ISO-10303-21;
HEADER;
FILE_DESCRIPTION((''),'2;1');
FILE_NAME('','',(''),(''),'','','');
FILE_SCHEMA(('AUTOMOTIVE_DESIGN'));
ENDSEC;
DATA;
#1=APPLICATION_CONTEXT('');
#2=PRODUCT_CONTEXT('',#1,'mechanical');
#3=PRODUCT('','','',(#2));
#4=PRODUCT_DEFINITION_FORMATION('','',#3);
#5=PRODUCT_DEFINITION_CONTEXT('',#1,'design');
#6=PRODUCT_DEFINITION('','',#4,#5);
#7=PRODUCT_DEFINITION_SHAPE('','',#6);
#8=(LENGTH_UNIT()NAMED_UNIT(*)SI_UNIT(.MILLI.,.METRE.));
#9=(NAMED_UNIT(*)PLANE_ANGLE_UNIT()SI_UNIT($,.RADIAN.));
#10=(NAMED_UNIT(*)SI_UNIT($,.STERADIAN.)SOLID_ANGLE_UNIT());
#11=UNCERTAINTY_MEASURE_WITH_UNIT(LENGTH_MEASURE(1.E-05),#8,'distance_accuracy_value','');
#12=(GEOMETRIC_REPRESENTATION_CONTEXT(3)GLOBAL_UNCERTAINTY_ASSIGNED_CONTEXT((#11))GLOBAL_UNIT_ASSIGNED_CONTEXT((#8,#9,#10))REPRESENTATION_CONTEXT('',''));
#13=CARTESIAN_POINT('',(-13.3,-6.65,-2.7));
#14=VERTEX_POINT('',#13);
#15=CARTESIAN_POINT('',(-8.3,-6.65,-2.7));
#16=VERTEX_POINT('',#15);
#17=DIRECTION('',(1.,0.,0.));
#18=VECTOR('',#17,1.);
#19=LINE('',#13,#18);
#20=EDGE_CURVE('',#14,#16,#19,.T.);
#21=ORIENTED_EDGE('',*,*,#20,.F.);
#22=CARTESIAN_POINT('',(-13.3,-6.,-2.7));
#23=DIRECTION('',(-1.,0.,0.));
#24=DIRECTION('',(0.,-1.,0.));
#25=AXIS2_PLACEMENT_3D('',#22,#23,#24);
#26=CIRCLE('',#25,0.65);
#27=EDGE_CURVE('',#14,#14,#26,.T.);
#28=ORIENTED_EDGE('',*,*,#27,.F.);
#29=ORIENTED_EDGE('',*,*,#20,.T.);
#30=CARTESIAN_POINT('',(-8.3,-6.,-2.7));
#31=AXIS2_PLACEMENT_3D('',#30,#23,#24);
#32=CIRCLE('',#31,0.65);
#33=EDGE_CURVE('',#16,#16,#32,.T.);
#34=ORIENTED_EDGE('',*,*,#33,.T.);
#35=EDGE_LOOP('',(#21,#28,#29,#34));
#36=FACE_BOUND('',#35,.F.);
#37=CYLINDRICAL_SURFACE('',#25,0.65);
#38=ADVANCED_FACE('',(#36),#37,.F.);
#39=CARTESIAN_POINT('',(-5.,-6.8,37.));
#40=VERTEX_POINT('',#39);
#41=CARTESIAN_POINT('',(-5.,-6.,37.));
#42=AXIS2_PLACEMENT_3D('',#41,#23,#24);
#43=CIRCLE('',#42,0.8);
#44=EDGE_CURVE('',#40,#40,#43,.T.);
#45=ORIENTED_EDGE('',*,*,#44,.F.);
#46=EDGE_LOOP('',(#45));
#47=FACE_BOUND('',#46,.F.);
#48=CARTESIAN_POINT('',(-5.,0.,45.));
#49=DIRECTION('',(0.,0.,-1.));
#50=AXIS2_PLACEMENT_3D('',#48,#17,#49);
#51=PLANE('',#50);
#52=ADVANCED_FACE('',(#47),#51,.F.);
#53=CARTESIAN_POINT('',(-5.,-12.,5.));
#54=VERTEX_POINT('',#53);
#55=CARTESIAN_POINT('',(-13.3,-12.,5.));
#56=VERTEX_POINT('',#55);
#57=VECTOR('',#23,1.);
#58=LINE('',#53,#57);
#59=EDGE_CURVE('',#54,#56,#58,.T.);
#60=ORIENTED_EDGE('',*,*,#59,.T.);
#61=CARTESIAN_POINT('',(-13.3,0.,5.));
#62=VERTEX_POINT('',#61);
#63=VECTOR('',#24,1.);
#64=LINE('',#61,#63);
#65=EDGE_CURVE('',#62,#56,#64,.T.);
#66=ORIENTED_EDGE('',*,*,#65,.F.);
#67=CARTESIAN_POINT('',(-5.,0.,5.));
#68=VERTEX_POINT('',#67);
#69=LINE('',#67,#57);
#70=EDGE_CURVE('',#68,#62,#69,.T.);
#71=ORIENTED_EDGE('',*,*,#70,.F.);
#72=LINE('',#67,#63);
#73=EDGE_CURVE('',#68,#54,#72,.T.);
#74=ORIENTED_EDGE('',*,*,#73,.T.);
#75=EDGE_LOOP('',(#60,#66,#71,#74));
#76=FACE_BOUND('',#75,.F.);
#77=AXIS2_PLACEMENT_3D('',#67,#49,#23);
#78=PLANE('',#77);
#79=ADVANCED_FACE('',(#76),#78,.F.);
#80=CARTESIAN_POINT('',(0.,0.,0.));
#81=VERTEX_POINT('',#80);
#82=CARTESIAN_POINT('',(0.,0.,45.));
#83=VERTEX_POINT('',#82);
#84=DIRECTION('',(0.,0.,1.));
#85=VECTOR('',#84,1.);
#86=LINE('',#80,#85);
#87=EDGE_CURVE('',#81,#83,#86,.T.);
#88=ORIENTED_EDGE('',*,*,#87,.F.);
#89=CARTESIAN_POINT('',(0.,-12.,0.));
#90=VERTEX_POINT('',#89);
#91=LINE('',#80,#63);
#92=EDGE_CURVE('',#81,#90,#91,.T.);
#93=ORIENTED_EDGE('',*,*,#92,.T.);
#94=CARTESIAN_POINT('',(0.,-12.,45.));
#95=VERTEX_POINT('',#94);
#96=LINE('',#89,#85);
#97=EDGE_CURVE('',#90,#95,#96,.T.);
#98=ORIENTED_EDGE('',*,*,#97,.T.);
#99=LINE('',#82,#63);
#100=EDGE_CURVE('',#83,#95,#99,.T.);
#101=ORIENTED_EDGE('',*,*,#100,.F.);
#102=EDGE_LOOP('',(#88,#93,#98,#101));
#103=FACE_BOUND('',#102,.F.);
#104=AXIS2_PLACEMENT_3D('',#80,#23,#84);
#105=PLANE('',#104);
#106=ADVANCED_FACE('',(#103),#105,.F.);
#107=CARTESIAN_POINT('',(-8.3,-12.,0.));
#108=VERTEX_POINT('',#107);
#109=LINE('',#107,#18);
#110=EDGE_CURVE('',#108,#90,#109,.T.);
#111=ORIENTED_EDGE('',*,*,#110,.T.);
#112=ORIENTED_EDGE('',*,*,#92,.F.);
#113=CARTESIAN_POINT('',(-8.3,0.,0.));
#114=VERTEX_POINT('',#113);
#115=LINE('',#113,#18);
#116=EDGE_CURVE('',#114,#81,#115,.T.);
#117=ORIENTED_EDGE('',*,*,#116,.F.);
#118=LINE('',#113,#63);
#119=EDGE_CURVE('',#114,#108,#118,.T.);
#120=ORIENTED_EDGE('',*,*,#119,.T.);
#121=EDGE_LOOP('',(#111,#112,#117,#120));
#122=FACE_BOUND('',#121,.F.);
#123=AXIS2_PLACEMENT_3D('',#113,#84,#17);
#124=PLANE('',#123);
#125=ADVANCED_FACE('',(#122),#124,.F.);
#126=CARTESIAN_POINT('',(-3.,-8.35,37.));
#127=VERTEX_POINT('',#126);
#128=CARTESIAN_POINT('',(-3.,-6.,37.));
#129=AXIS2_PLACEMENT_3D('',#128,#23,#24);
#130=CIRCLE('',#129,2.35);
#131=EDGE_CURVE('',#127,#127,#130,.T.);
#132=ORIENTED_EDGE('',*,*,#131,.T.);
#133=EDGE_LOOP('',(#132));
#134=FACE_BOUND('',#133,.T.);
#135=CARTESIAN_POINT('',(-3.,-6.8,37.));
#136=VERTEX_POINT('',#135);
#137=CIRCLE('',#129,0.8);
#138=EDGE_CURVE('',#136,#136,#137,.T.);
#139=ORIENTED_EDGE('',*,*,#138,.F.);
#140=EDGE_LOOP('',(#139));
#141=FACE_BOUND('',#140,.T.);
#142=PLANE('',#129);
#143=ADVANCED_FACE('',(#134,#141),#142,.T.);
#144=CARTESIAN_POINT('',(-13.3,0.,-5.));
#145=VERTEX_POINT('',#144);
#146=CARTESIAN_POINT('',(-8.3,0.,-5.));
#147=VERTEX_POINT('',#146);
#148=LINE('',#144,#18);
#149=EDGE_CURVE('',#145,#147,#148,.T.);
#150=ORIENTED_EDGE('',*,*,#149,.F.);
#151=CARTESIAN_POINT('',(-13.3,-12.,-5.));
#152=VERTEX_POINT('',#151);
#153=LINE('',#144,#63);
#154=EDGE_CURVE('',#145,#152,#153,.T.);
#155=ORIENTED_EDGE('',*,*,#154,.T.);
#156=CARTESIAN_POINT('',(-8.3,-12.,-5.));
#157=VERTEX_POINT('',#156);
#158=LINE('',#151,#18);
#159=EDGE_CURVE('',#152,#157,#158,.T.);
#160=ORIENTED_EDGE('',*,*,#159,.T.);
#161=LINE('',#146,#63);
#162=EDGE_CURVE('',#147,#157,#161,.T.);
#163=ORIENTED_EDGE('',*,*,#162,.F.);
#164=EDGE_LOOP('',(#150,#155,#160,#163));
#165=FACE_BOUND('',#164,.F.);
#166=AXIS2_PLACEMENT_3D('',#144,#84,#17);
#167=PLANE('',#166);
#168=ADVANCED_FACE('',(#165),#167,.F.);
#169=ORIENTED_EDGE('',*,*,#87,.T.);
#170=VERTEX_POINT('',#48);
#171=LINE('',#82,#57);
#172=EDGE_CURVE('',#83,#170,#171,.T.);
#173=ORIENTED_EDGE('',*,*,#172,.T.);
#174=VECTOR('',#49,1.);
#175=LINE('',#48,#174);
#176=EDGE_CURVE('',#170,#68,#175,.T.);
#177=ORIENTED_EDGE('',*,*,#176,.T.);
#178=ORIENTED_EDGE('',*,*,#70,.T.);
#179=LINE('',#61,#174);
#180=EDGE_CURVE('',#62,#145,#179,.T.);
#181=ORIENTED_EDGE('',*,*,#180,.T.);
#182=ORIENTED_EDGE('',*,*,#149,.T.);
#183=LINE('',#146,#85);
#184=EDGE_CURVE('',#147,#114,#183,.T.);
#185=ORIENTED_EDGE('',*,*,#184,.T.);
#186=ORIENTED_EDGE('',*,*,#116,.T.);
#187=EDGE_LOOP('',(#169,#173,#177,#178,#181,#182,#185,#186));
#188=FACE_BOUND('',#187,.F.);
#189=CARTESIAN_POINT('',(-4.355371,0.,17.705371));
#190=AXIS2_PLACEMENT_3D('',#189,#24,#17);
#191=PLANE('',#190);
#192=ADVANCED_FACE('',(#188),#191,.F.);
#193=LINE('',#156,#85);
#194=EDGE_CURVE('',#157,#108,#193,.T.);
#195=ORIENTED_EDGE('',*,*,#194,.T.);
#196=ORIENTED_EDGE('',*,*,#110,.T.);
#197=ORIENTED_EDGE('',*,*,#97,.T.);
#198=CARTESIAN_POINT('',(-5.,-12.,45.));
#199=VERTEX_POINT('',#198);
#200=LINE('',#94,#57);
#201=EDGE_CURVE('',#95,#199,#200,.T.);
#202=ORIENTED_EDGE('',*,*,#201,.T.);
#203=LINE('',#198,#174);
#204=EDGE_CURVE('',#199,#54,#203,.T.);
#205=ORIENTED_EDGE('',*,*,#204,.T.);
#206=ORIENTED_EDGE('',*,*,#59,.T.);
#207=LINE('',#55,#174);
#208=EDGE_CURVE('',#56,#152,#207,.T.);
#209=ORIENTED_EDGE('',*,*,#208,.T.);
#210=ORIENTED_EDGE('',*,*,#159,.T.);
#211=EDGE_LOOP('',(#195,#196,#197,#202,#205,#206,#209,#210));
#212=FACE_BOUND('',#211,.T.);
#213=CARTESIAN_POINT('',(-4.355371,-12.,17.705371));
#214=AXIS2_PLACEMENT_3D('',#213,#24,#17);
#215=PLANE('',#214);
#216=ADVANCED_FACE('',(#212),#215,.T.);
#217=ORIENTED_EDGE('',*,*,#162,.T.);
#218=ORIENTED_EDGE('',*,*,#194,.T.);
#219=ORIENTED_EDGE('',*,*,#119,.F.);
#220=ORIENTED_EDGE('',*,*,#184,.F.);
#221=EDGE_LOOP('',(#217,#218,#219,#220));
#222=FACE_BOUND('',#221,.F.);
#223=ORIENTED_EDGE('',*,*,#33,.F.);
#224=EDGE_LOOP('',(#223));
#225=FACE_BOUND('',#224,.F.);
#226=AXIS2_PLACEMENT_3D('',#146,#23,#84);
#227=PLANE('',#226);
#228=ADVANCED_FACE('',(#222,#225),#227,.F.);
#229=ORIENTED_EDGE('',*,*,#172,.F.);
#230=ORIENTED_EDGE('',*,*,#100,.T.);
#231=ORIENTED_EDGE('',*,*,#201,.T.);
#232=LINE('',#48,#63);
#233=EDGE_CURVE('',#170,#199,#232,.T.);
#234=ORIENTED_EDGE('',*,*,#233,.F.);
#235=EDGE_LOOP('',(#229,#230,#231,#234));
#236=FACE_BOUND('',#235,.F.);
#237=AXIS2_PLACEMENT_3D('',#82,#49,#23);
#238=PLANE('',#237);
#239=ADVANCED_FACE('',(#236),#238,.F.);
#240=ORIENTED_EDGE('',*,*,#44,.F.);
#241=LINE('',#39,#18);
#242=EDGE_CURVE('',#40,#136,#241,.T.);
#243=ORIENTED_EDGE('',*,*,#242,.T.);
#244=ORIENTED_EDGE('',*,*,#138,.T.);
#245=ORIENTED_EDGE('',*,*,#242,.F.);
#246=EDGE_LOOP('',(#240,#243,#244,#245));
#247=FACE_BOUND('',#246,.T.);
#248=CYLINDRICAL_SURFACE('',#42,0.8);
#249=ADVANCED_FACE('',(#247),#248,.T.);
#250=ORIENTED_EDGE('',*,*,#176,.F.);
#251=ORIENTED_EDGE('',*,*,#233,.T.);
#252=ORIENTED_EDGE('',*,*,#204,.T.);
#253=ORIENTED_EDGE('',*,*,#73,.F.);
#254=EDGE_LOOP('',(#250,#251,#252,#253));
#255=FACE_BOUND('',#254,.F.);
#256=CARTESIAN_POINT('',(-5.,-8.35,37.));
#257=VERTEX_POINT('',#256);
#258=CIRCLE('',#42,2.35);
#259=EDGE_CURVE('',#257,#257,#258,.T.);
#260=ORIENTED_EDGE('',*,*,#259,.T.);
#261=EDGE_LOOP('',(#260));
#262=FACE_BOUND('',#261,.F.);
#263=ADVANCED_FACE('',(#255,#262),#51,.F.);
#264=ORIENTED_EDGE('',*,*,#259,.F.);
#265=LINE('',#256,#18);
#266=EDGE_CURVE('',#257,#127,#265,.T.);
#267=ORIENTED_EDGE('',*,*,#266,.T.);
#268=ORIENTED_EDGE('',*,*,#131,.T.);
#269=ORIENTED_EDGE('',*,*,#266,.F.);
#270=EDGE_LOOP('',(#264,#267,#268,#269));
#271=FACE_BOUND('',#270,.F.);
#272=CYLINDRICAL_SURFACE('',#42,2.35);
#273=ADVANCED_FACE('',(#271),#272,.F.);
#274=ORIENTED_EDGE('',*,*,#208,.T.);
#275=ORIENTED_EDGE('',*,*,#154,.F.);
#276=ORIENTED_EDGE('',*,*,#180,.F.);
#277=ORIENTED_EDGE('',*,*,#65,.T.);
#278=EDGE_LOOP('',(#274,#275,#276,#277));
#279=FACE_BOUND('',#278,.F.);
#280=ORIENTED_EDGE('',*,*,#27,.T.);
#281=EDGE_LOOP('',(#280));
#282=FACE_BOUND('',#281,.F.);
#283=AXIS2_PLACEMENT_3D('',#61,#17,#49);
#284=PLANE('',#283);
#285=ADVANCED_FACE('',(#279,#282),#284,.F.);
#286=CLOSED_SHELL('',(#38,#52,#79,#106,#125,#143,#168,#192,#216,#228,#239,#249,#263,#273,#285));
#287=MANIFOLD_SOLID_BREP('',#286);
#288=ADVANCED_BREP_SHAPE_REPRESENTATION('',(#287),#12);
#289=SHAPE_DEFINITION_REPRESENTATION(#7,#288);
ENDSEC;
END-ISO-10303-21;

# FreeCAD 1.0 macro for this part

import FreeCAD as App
import Part
import Sketcher
from FreeCAD import Vector

doc = App.newDocument("Part")
body = doc.addObject("PartDesign::Body", "Body")

# Sketch on XZ plane
sketch1 = body.newObject("Sketcher::SketchObject", "Sketch")
sketch1.AttachmentSupport = (doc.getObject("XZ_Plane"), [""])
sketch1.MapMode = "FlatFace"
sketch1.addGeometry(Part.LineSegment(Vector(-13, 5, 0), Vector(-13, -5, 0)), False)
sketch1.addGeometry(Part.LineSegment(Vector(-13, -5, 0), Vector(-8, -5, 0)), False)
sketch1.addGeometry(Part.LineSegment(Vector(-8, -5, 0), Vector(-8, 0, 0)), False)
sketch1.addGeometry(Part.LineSegment(Vector(-8, 0, 0), Vector(0, 0, 0)), False)
sketch1.addGeometry(Part.LineSegment(Vector(0, 0, 0), Vector(0, 45, 0)), False)
sketch1.addGeometry(Part.LineSegment(Vector(0, 45, 0), Vector(-5, 45, 0)), False)
sketch1.addGeometry(Part.LineSegment(Vector(-5, 45, 0), Vector(-5, 5, 0)), False)
sketch1.addGeometry(Part.LineSegment(Vector(-5, 5, 0), Vector(-13, 5, 0)), False)
sketch1.addConstraint(Sketcher.Constraint("Coincident", 0, 2, 1, 1))
sketch1.addConstraint(Sketcher.Constraint("Coincident", 1, 2, 2, 1))
sketch1.addConstraint(Sketcher.Constraint("Coincident", 2, 2, 3, 1))
sketch1.addConstraint(Sketcher.Constraint("Coincident", 3, 2, 4, 1))
sketch1.addConstraint(Sketcher.Constraint("Coincident", 4, 2, 5, 1))
sketch1.addConstraint(Sketcher.Constraint("Coincident", 5, 2, 6, 1))
sketch1.addConstraint(Sketcher.Constraint("Coincident", 6, 2, 7, 1))
sketch1.addConstraint(Sketcher.Constraint("Coincident", 7, 2, 0, 1))
sketch1.addConstraint(Sketcher.Constraint("Vertical", 0))
sketch1.addConstraint(Sketcher.Constraint("Horizontal", 1))
sketch1.addConstraint(Sketcher.Constraint("Vertical", 2))
sketch1.addConstraint(Sketcher.Constraint("Horizontal", 3))
sketch1.addConstraint(Sketcher.Constraint("Vertical", 4))
sketch1.addConstraint(Sketcher.Constraint("Horizontal", 5))
sketch1.addConstraint(Sketcher.Constraint("Vertical", 6))
sketch1.addConstraint(Sketcher.Constraint("Horizontal", 7))
sketch1.addConstraint(Sketcher.Constraint("Coincident", 3, 2, -1, 1))
sketch1.addConstraint(Sketcher.Constraint("Equal", 1, 5))
sketch1.addConstraint(Sketcher.Constraint("Equal", 5, 2))
sketch1.addConstraint(Sketcher.Constraint("DistanceX", 1, 1, 1, 2, 5.0))
sketch1.addConstraint(Sketcher.Constraint("DistanceY", 0, 2, 0, 1, 10.0))
sketch1.addConstraint(Sketcher.Constraint("DistanceY", 4, 1, 4, 2, 45.0))
sketch1.addConstraint(Sketcher.Constraint("DistanceX", 3, 1, 3, 2, 8.3))
pad1 = body.newObject("PartDesign::Pad", "Pad")
pad1.Profile = sketch1
pad1.Length = 12

# Sketch on YZ plane
sketch2 = body.newObject("Sketcher::SketchObject", "Sketch001")
sketch2.AttachmentSupport = (doc.getObject("YZ_Plane"), [""])
sketch2.MapMode = "FlatFace"
sketch2.AttachmentOffset = App.Placement(Vector(0, 0, -13.3), App.Rotation())
sketch2.addGeometry(Part.Circle(Vector(-6, -2.7, 0), Vector(0, 0, 1), 0.7), False)
sketch2.addConstraint(Sketcher.Constraint("Diameter", 0, 1.3))
sketch2.addConstraint(Sketcher.Constraint("DistanceX", 0, 3, -1, 1, 6.0))
sketch2.addConstraint(Sketcher.Constraint("DistanceY", 0, 3, -1, 1, 2.7))
pocket1 = body.newObject("PartDesign::Pocket", "Pocket")
pocket1.Profile = sketch2
pocket1.Length = 5
pocket1.Reversed = True

# Sketch on YZ plane
sketch3 = body.newObject("Sketcher::SketchObject", "Sketch002")
sketch3.AttachmentSupport = (doc.getObject("YZ_Plane"), [""])
sketch3.MapMode = "FlatFace"
sketch3.AttachmentOffset = App.Placement(Vector(0, 0, -5), App.Rotation())
sketch3.addGeometry(Part.Circle(Vector(-6, 37, 0), Vector(0, 0, 1), 2.4), False)
sketch3.addGeometry(Part.Circle(Vector(-6, 37, 0), Vector(0, 0, 1), 0.8), False)
sketch3.addConstraint(Sketcher.Constraint("Coincident", 1, 3, 0, 3))
sketch3.addConstraint(Sketcher.Constraint("Diameter", 0, 4.7))
sketch3.addConstraint(Sketcher.Constraint("Diameter", 1, 1.6))
sketch3.addConstraint(Sketcher.Constraint("DistanceX", 0, 3, -1, 1, 6.0))
sketch3.addConstraint(Sketcher.Constraint("DistanceY", -1, 1, 0, 3, 37.0))
pocket2 = body.newObject("PartDesign::Pocket", "Pocket001")
pocket2.Profile = sketch3
pocket2.Length = 2
pocket2.Reversed = True

doc.recompute()
